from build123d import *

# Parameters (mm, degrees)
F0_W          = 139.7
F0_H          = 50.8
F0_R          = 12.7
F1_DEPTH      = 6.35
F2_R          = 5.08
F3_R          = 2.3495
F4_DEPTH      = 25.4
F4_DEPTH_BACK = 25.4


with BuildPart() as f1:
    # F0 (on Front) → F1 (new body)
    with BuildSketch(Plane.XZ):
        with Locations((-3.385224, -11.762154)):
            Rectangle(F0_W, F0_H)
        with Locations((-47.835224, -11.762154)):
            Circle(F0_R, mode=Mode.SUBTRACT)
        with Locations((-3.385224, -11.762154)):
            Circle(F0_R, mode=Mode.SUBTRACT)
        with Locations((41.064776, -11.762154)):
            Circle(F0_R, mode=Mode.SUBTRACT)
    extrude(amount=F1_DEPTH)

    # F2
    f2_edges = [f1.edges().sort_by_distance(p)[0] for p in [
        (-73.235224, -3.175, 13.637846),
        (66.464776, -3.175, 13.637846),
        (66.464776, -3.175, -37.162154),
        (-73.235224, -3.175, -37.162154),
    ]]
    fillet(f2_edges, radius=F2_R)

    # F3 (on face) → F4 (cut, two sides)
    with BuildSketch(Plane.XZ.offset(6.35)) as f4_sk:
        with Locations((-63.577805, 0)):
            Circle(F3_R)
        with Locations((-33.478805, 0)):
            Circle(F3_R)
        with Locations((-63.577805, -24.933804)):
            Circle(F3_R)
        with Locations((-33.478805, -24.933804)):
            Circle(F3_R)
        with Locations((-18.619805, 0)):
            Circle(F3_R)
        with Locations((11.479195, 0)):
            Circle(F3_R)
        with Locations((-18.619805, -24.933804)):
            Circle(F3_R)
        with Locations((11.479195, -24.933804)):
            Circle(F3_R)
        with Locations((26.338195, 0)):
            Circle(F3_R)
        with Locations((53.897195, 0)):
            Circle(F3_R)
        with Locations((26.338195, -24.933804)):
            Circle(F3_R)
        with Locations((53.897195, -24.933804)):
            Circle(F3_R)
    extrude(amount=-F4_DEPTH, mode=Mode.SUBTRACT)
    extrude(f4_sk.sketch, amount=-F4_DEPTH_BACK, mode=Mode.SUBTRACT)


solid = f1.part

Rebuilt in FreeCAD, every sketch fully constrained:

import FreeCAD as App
import Part
import Sketcher

V = App.Vector
Q = App.Units.Quantity


def edges_at(feature, points):
    """Names of the edges that pass closest to the given points."""
    edges = feature.Shape.Edges
    near = lambda p: min(range(len(edges)), key=lambda i: edges[i].distToShape(Part.Vertex(*p))[0])
    return sorted({f"Edge{near(p) + 1}" for p in points})

doc = App.newDocument("Part")
body = doc.addObject("PartDesign::Body", "Body")

sketch1 = body.newObject("Sketcher::SketchObject", "Sketch")
sketch1.AttachmentSupport = (doc.getObject("XZ_Plane"), [""])
sketch1.MapMode = "FlatFace"
sketch1.addGeometry(Part.LineSegment(V(-73, 14, 0), V(-73, -37, 0)), False)
sketch1.addGeometry(Part.LineSegment(V(-73, -37, 0), V(66, -37, 0)), False)
sketch1.addGeometry(Part.LineSegment(V(66, -37, 0), V(66, 14, 0)), False)
sketch1.addGeometry(Part.LineSegment(V(66, 14, 0), V(-73, 14, 0)), False)
sketch1.addGeometry(Part.Circle(V(-48, -12, 0), V(0, 0, 1), 13), False)
sketch1.addGeometry(Part.Circle(V(-3, -12, 0), V(0, 0, 1), 13), False)
sketch1.addGeometry(Part.Circle(V(41, -12, 0), V(0, 0, 1), 13), False)
sketch1.addConstraint(Sketcher.Constraint("Coincident", 0, 2, 1, 1))
sketch1.addConstraint(Sketcher.Constraint("Coincident", 1, 2, 2, 1))
sketch1.addConstraint(Sketcher.Constraint("Coincident", 2, 2, 3, 1))
sketch1.addConstraint(Sketcher.Constraint("Coincident", 3, 2, 0, 1))
sketch1.addConstraint(Sketcher.Constraint("Vertical", 0))
sketch1.addConstraint(Sketcher.Constraint("Horizontal", 1))
sketch1.addConstraint(Sketcher.Constraint("Vertical", 2))
sketch1.addConstraint(Sketcher.Constraint("Horizontal", 3))
sketch1.addConstraint(Sketcher.Constraint("Equal", 4, 5))
sketch1.addConstraint(Sketcher.Constraint("Equal", 5, 6))
sketch1.addConstraint(Sketcher.Constraint("Horizontal", 4, 3, 5, 3))
sketch1.addConstraint(Sketcher.Constraint("Horizontal", 5, 3, 6, 3))
sketch1.addConstraint(Sketcher.Constraint("Diameter", 4, Q("1 in")))
sketch1.addConstraint(Sketcher.Constraint("DistanceY", 0, 2, 0, 1, Q("2 in")))
sketch1.addConstraint(Sketcher.Constraint("DistanceX", 1, 1, 1, 2, Q("5.5 in")))
sketch1.addConstraint(Sketcher.Constraint("DistanceX", 0, 2, 4, 3, Q("1 in")))
sketch1.addConstraint(Sketcher.Constraint("DistanceY", 0, 2, 4, 3, Q("1 in")))
sketch1.addConstraint(Sketcher.Constraint("DistanceX", 6, 3, 1, 2, Q("1 in")))
sketch1.addConstraint(Sketcher.Constraint("DistanceX", 4, 3, 5, 3, Q("1.75 in")))
sketch1.addConstraint(Sketcher.Constraint("DistanceX", 4, 3, -1, 1, 47.835224))
sketch1.addConstraint(Sketcher.Constraint("DistanceY", 4, 3, -1, 1, 11.762154))
pad1 = body.newObject("PartDesign::Pad", "Pad")
pad1.Profile = sketch1
pad1.Length = Q("0.25 in")
doc.recompute()

fillet = body.newObject("PartDesign::Fillet", "Fillet")
fillet.Base = (pad1, edges_at(pad1, [
    (-73.235, -3.175, 13.638),
    (66.465, -3.175, 13.638),
    (66.465, -3.175, -37.162),
    (-73.235, -3.175, -37.162),
]))
fillet.Radius = Q("0.2 in")

sketch2 = body.newObject("Sketcher::SketchObject", "Sketch001")
sketch2.AttachmentSupport = (doc.getObject("XZ_Plane"), [""])
sketch2.MapMode = "FlatFace"
sketch2.AttachmentOffset = App.Placement(V(0, 0, 0.25 * 25.4), App.Rotation())
sketch2.addGeometry(Part.Circle(V(-63.6, 0, 0), V(0, 0, 1), 2.3), False)
sketch2.addGeometry(Part.Circle(V(-33.5, 0, 0), V(0, 0, 1), 2.3), False)
sketch2.addGeometry(Part.Circle(V(-63.6, -24.9, 0), V(0, 0, 1), 2.3), False)
sketch2.addGeometry(Part.Circle(V(-33.5, -24.9, 0), V(0, 0, 1), 2.3), False)
sketch2.addGeometry(Part.Circle(V(-18.6, 0, 0), V(0, 0, 1), 2.3), False)
sketch2.addGeometry(Part.Circle(V(11.5, 0, 0), V(0, 0, 1), 2.3), False)
sketch2.addGeometry(Part.Circle(V(-18.6, -24.9, 0), V(0, 0, 1), 2.3), False)
sketch2.addGeometry(Part.Circle(V(11.5, -24.9, 0), V(0, 0, 1), 2.3), False)
sketch2.addGeometry(Part.Circle(V(26.3, 0, 0), V(0, 0, 1), 2.3), False)
sketch2.addGeometry(Part.Circle(V(53.9, 0, 0), V(0, 0, 1), 2.3), False)
sketch2.addGeometry(Part.Circle(V(26.3, -24.9, 0), V(0, 0, 1), 2.3), False)
sketch2.addGeometry(Part.Circle(V(53.9, -24.9, 0), V(0, 0, 1), 2.3), False)
sketch2.addConstraint(Sketcher.Constraint("Equal", 0, 1))
sketch2.addConstraint(Sketcher.Constraint("Equal", 1, 2))
sketch2.addConstraint(Sketcher.Constraint("Equal", 2, 3))
sketch2.addConstraint(Sketcher.Constraint("Equal", 3, 4))
sketch2.addConstraint(Sketcher.Constraint("Equal", 4, 5))
sketch2.addConstraint(Sketcher.Constraint("Equal", 5, 6))
sketch2.addConstraint(Sketcher.Constraint("Equal", 6, 7))
sketch2.addConstraint(Sketcher.Constraint("Equal", 7, 8))
sketch2.addConstraint(Sketcher.Constraint("Equal", 8, 9))
sketch2.addConstraint(Sketcher.Constraint("Equal", 9, 10))
sketch2.addConstraint(Sketcher.Constraint("Equal", 10, 11))
sketch2.addConstraint(Sketcher.Constraint("PointOnObject", 0, 3, -1))
sketch2.addConstraint(Sketcher.Constraint("PointOnObject", 1, 3, -1))
sketch2.addConstraint(Sketcher.Constraint("PointOnObject", 4, 3, -1))
sketch2.addConstraint(Sketcher.Constraint("PointOnObject", 5, 3, -1))
sketch2.addConstraint(Sketcher.Constraint("PointOnObject", 8, 3, -1))
sketch2.addConstraint(Sketcher.Constraint("PointOnObject", 9, 3, -1))
sketch2.addConstraint(Sketcher.Constraint("Horizontal", 2, 3, 3, 3))
sketch2.addConstraint(Sketcher.Constraint("Horizontal", 3, 3, 6, 3))
sketch2.addConstraint(Sketcher.Constraint("Horizontal", 6, 3, 7, 3))
sketch2.addConstraint(Sketcher.Constraint("Horizontal", 7, 3, 10, 3))
sketch2.addConstraint(Sketcher.Constraint("Horizontal", 10, 3, 11, 3))
sketch2.addConstraint(Sketcher.Constraint("Vertical", 0, 3, 2, 3))
sketch2.addConstraint(Sketcher.Constraint("Vertical", 1, 3, 3, 3))
sketch2.addConstraint(Sketcher.Constraint("Vertical", 4, 3, 6, 3))
sketch2.addConstraint(Sketcher.Constraint("Vertical", 5, 3, 7, 3))
sketch2.addConstraint(Sketcher.Constraint("Vertical", 8, 3, 10, 3))
sketch2.addConstraint(Sketcher.Constraint("Vertical", 9, 3, 11, 3))
sketch2.addConstraint(Sketcher.Constraint("Diameter", 0, Q("0.185 in")))
sketch2.addConstraint(Sketcher.Constraint("DistanceX", 0, 3, 4, 3, Q("1.77 in")))
sketch2.addConstraint(Sketcher.Constraint("DistanceX", 1, 3, 5, 3, Q("1.77 in")))
sketch2.addConstraint(Sketcher.Constraint("DistanceX", 4, 3, 8, 3, Q("1.77 in")))
sketch2.addConstraint(Sketcher.Constraint("DistanceX", 5, 3, 9, 3, Q("1.67 in")))
sketch2.addConstraint(Sketcher.Constraint("DistanceX", 0, 3, 1, 3, Q("1.185 in")))
sketch2.addConstraint(Sketcher.Constraint("DistanceX", 0, 3, -1, 1, 63.577805))
sketch2.addConstraint(Sketcher.Constraint("DistanceY", 2, 3, -1, 1, 24.933804))
pocket1 = body.newObject("PartDesign::Pocket", "Pocket")
pocket1.Profile = sketch2
pocket1.Length = Q("1 in")
pocket2 = body.newObject("PartDesign::Pocket", "Pocket001")
pocket2.Profile = sketch2
pocket2.Length = Q("1 in")

doc.recompute()
